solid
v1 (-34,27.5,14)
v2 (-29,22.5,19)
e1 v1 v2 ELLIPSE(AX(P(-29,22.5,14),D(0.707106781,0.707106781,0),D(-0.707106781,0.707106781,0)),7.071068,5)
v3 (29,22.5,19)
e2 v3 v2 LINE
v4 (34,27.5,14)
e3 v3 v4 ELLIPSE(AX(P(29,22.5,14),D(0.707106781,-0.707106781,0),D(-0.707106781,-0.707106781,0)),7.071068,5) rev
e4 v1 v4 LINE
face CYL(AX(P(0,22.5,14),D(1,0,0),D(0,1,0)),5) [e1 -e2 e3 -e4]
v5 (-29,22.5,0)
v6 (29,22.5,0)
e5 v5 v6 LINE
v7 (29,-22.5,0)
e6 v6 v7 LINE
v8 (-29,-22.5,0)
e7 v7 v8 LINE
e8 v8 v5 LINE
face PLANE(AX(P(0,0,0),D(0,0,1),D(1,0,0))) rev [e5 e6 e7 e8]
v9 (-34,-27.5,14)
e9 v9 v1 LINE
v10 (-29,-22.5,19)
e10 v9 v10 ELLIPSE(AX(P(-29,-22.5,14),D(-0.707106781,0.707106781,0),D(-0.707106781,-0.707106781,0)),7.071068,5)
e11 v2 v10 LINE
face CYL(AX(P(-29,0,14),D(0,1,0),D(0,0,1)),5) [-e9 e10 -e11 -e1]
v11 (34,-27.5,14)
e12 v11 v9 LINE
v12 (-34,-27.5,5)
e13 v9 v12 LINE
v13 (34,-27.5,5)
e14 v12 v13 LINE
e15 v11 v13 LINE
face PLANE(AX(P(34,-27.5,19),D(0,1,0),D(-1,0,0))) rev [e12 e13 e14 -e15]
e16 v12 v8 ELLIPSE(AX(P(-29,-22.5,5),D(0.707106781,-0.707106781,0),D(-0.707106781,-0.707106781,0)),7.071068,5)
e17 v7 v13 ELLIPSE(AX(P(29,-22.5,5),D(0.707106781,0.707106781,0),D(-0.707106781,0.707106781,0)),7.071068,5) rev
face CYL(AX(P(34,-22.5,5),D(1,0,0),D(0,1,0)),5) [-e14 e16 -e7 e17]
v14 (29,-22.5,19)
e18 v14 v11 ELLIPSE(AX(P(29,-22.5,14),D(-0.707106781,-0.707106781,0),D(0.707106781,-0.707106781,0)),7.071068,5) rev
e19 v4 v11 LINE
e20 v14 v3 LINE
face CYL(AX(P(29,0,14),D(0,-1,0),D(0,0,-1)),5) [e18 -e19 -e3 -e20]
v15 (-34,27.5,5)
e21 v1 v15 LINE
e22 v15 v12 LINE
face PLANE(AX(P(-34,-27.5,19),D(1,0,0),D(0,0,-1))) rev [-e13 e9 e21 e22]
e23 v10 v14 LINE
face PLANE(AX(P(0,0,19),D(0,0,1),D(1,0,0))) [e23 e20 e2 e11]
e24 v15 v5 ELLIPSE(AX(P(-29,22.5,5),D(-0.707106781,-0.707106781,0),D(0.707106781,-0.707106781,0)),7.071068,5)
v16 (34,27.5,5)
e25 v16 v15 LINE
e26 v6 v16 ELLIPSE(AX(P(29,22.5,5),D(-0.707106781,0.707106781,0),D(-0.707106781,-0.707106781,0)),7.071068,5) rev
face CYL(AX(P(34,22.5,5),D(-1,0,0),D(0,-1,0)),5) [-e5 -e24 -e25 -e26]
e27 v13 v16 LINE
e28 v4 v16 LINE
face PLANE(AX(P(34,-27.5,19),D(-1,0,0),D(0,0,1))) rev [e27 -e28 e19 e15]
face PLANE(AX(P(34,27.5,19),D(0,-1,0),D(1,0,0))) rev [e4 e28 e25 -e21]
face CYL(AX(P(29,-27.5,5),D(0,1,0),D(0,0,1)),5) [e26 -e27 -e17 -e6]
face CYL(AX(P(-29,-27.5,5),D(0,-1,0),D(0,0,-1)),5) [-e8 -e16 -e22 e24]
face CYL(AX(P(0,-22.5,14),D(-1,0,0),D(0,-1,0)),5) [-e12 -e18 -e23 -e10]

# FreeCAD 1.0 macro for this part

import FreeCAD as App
import Part
import Sketcher

V = App.Vector
Q = App.Units.Quantity


def edges_at(feature, points):
    """Names of the edges that pass closest to the given points."""
    edges = feature.Shape.Edges
    near = lambda p: min(range(len(edges)), key=lambda i: edges[i].distToShape(Part.Vertex(*p))[0])
    return sorted({f"Edge{near(p) + 1}" for p in points})

doc = App.newDocument("Part")
body = doc.addObject("PartDesign::Body", "Body")

# Sketch on XY plane
sketch1 = body.newObject("Sketcher::SketchObject", "Sketch")
sketch1.AttachmentSupport = (doc.getObject("XY_Plane"), [""])
sketch1.MapMode = "FlatFace"
sketch1.addGeometry([
    Part.LineSegment(V(-34, 27.5, 0), V(-34, -27.5, 0)),
    Part.LineSegment(V(-34, -27.5, 0), V(34, -27.5, 0)),
    Part.LineSegment(V(34, -27.5, 0), V(34, 27.5, 0)),
    Part.LineSegment(V(34, 27.5, 0), V(-34, 27.5, 0)),
], False)
sketch1.addConstraint([
    Sketcher.Constraint("Coincident", 0, 2, 1, 1),
    Sketcher.Constraint("Coincident", 1, 2, 2, 1),
    Sketcher.Constraint("Coincident", 2, 2, 3, 1),
    Sketcher.Constraint("Coincident", 3, 2, 0, 1),
    Sketcher.Constraint("Vertical", 0),
    Sketcher.Constraint("Horizontal", 1),
    Sketcher.Constraint("Vertical", 2),
    Sketcher.Constraint("Horizontal", 3),
    Sketcher.Constraint("Symmetric", 0, 2, 2, 2, -1, 1),
    Sketcher.Constraint("DistanceX", 1, 1, 1, 2, Q("68 mm")),
    Sketcher.Constraint("DistanceY", 0, 2, 0, 1, Q("55 mm")),
])
pad1 = body.newObject("PartDesign::Pad", "Pad")
pad1.Profile = sketch1
pad1.Length = 19
doc.recompute()

fillet = body.newObject("PartDesign::Fillet", "Fillet")
fillet.Base = (pad1, edges_at(pad1, [
    (34, 0, 19),
    (0, 27.5, 19),
    (-34, 0, 19),
    (0, 27.5, 0),
    (34, 0, 0),
    (0, -27.5, 0),
    (-34, 0, 0),
    (0, -27.5, 19),
]))
fillet.Radius = 5

doc.recompute()
